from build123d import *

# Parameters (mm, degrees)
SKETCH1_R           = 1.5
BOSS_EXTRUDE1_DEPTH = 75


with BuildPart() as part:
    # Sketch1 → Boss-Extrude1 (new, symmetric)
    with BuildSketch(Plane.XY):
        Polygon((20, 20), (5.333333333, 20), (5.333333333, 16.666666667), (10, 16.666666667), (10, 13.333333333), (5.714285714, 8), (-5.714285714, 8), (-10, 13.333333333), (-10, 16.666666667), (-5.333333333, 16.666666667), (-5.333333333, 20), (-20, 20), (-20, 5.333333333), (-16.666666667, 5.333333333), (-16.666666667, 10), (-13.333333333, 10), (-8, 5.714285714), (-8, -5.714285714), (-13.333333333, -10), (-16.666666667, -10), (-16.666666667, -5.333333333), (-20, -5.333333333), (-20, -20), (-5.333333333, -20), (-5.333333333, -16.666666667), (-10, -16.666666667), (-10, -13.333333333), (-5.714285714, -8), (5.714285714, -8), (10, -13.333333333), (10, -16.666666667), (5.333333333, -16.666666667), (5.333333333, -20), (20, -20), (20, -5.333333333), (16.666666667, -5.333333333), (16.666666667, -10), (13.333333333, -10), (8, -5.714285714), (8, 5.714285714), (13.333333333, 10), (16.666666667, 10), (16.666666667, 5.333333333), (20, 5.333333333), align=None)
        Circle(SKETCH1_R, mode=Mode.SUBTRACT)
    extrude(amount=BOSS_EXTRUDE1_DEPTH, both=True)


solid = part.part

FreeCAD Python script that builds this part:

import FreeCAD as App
import Part
import Sketcher


def add_polygon(sketch, points):
    """Adds a closed chain of lines whose ends are joined by coincident constraints."""
    first, n = sketch.GeometryCount, len(points)
    for a, b in zip(points, points[1:] + points[:1]):
        sketch.addGeometry(Part.LineSegment(App.Vector(*a, 0), App.Vector(*b, 0)), False)
    for i in range(n):
        sketch.addConstraint(Sketcher.Constraint("Coincident", first + i, 2, first + (i + 1) % n, 1))

doc = App.newDocument("Part")
body = doc.addObject("PartDesign::Body", "Body")

sketch1 = body.newObject("Sketcher::SketchObject", "Sketch")
sketch1.AttachmentSupport = (doc.getObject("XY_Plane"), [""])
sketch1.MapMode = "FlatFace"
add_polygon(sketch1, [(20, 20), (5.3, 20), (5.3, 16.7), (10, 16.7), (10, 13.3), (5.7, 8), (-5.7, 8), (-10, 13.3), (-10, 16.7), (-5.3, 16.7), (-5.3, 20), (-20, 20), (-20, 5.3), (-16.7, 5.3), (-16.7, 10), (-13.3, 10), (-8, 5.7), (-8, -5.7), (-13.3, -10), (-16.7, -10), (-16.7, -5.3), (-20, -5.3), (-20, -20), (-5.3, -20), (-5.3, -16.7), (-10, -16.7), (-10, -13.3), (-5.7, -8), (5.7, -8), (10, -13.3), (10, -16.7), (5.3, -16.7), (5.3, -20), (20, -20), (20, -5.3), (16.7, -5.3), (16.7, -10), (13.3, -10), (8, -5.7), (8, 5.7), (13.3, 10), (16.7, 10), (16.7, 5.3), (20, 5.3)])
sketch1.addGeometry(Part.Circle(App.Vector(0, 0, 0), App.Vector(0, 0, 1), 1.5), False)
sketch1.addConstraint(Sketcher.Constraint("Horizontal", 0))
sketch1.addConstraint(Sketcher.Constraint("Vertical", 1))
sketch1.addConstraint(Sketcher.Constraint("Horizontal", 2))
sketch1.addConstraint(Sketcher.Constraint("Vertical", 3))
sketch1.addConstraint(Sketcher.Constraint("Horizontal", 5))
sketch1.addConstraint(Sketcher.Constraint("Vertical", 7))
sketch1.addConstraint(Sketcher.Constraint("Horizontal", 8))
sketch1.addConstraint(Sketcher.Constraint("Vertical", 9))
sketch1.addConstraint(Sketcher.Constraint("Horizontal", 10))
sketch1.addConstraint(Sketcher.Constraint("Vertical", 11))
sketch1.addConstraint(Sketcher.Constraint("Horizontal", 12))
sketch1.addConstraint(Sketcher.Constraint("Vertical", 13))
sketch1.addConstraint(Sketcher.Constraint("Horizontal", 14))
sketch1.addConstraint(Sketcher.Constraint("Vertical", 16))
sketch1.addConstraint(Sketcher.Constraint("Horizontal", 18))
sketch1.addConstraint(Sketcher.Constraint("Vertical", 19))
sketch1.addConstraint(Sketcher.Constraint("Horizontal", 20))
sketch1.addConstraint(Sketcher.Constraint("Vertical", 21))
sketch1.addConstraint(Sketcher.Constraint("Horizontal", 22))
sketch1.addConstraint(Sketcher.Constraint("Vertical", 23))
sketch1.addConstraint(Sketcher.Constraint("Horizontal", 24))
sketch1.addConstraint(Sketcher.Constraint("Vertical", 25))
sketch1.addConstraint(Sketcher.Constraint("Horizontal", 27))
sketch1.addConstraint(Sketcher.Constraint("Vertical", 29))
sketch1.addConstraint(Sketcher.Constraint("Horizontal", 30))
sketch1.addConstraint(Sketcher.Constraint("Vertical", 31))
sketch1.addConstraint(Sketcher.Constraint("Horizontal", 32))
sketch1.addConstraint(Sketcher.Constraint("Vertical", 33))
sketch1.addConstraint(Sketcher.Constraint("Horizontal", 34))
sketch1.addConstraint(Sketcher.Constraint("Vertical", 35))
sketch1.addConstraint(Sketcher.Constraint("Horizontal", 36))
sketch1.addConstraint(Sketcher.Constraint("Vertical", 38))
sketch1.addConstraint(Sketcher.Constraint("Horizontal", 40))
sketch1.addConstraint(Sketcher.Constraint("Vertical", 41))
sketch1.addConstraint(Sketcher.Constraint("Horizontal", 42))
sketch1.addConstraint(Sketcher.Constraint("Vertical", 43))
sketch1.addConstraint(Sketcher.Constraint("Coincident", 44, 3, -1, 1))
sketch1.addConstraint(Sketcher.Constraint("Symmetric", 0, 2, 22, 2, -1, 1))
sketch1.addConstraint(Sketcher.Constraint("Symmetric", 2, 2, 24, 2, -1, 1))
sketch1.addConstraint(Sketcher.Constraint("Symmetric", 4, 2, 26, 2, -1, 1))
sketch1.addConstraint(Sketcher.Constraint("Symmetric", 6, 2, 28, 2, -1, 1))
sketch1.addConstraint(Sketcher.Constraint("Symmetric", 8, 2, 30, 2, -1, 1))
sketch1.addConstraint(Sketcher.Constraint("Symmetric", 10, 2, 32, 2, -1, 1))
sketch1.addConstraint(Sketcher.Constraint("Symmetric", 12, 2, 34, 2, -1, 1))
sketch1.addConstraint(Sketcher.Constraint("Symmetric", 14, 2, 36, 2, -1, 1))
sketch1.addConstraint(Sketcher.Constraint("Symmetric", 15, 2, 37, 2, -1, 1))
sketch1.addConstraint(Sketcher.Constraint("Symmetric", 17, 2, 39, 2, -1, 1))
sketch1.addConstraint(Sketcher.Constraint("Symmetric", 19, 2, 41, 2, -1, 1))
sketch1.addConstraint(Sketcher.Constraint("Symmetric", 3, 2, 6, 2, -2))
sketch1.addConstraint(Sketcher.Constraint("Symmetric", 1, 2, 8, 2, -2))
sketch1.addConstraint(Sketcher.Constraint("Symmetric", 21, 2, 32, 2, -2))
sketch1.addConstraint(Sketcher.Constraint("Symmetric", 19, 2, 34, 2, -2))
sketch1.addConstraint(Sketcher.Constraint("Symmetric", 17, 2, 36, 2, -2))
sketch1.addConstraint(Sketcher.Constraint("Perpendicular", 4, 15))
sketch1.addConstraint(Sketcher.Constraint("Perpendicular", 6, 17))
sketch1.addConstraint(Sketcher.Constraint("Perpendicular", 15, 26))
sketch1.addConstraint(Sketcher.Constraint("Perpendicular", 17, 28))
sketch1.addConstraint(Sketcher.Constraint("Perpendicular", 28, 39))
sketch1.addConstraint(Sketcher.Constraint("Horizontal", 16, 2, 37, 2))
sketch1.addConstraint(Sketcher.Constraint("Vertical", 33, 2, 42, 2))
sketch1.addConstraint(Sketcher.Constraint("Equal", 12, 14))
sketch1.addConstraint(Sketcher.Constraint("Equal", 42, 1))
sketch1.addConstraint(Sketcher.Constraint("Equal", 1, 3))
sketch1.addConstraint(Sketcher.Constraint("Equal", 32, 11))
sketch1.addConstraint(Sketcher.Constraint("Equal", 30, 13))
sketch1.addConstraint(Sketcher.Constraint("Equal", 27, 16))
sketch1.addConstraint(Sketcher.Constraint("Equal", 6, 15))
sketch1.addConstraint(Sketcher.Constraint("Diameter", 44, 3.0))
sketch1.addConstraint(Sketcher.Constraint("DistanceY", -1, 1, 0, 2, 20.0))
sketch1.addConstraint(Sketcher.Constraint("DistanceX", -1, 1, 2, 2, 10.0))
sketch1.addConstraint(Sketcher.Constraint("DistanceY", -1, 1, 4, 2, 8.0))
sketch1.addConstraint(Sketcher.Constraint("DistanceY", 11, 2, 6, 2, 8.0))
sketch1.addConstraint(Sketcher.Constraint("DistanceX", 5, 2, 5, 1, 11.428571))
sketch1.addConstraint(Sketcher.Constraint("DistanceX", 0, 2, 0, 1, 14.666667))
pad1 = body.newObject("PartDesign::Pad", "Pad")
pad1.Profile = sketch1
pad1.Length = 150
pad1.Midplane = True

doc.recompute()
